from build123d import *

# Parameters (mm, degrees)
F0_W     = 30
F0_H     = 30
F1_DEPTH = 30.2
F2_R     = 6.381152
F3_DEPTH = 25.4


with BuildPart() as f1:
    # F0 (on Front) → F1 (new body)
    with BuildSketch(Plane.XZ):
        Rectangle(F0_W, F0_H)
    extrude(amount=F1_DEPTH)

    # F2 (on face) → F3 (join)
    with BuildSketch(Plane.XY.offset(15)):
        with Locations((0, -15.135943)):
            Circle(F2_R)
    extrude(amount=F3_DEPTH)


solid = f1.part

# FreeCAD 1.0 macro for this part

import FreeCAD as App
import Part
import Sketcher

doc = App.newDocument("Part")
body = doc.addObject("PartDesign::Body", "Body")

# Sketch on XZ plane
sketch1 = body.newObject("Sketcher::SketchObject", "Sketch")
sketch1.AttachmentSupport = (doc.getObject("XZ_Plane"), [""])
sketch1.MapMode = "FlatFace"
sketch1.addGeometry([
    Part.LineSegment(App.Vector(-15, 15, 0), App.Vector(-15, -15, 0)),
    Part.LineSegment(App.Vector(-15, -15, 0), App.Vector(15, -15, 0)),
    Part.LineSegment(App.Vector(15, -15, 0), App.Vector(15, 15, 0)),
    Part.LineSegment(App.Vector(15, 15, 0), App.Vector(-15, 15, 0)),
], False)
sketch1.addConstraint([
    Sketcher.Constraint("Coincident", 0, 2, 1, 1),
    Sketcher.Constraint("Coincident", 1, 2, 2, 1),
    Sketcher.Constraint("Coincident", 2, 2, 3, 1),
    Sketcher.Constraint("Coincident", 3, 2, 0, 1),
    Sketcher.Constraint("Vertical", 0),
    Sketcher.Constraint("Horizontal", 1),
    Sketcher.Constraint("Vertical", 2),
    Sketcher.Constraint("Horizontal", 3),
    Sketcher.Constraint("Symmetric", 0, 2, 2, 2, -1, 1),
    Sketcher.Constraint("Equal", 3, 0),
    Sketcher.Constraint("DistanceX", 1, 1, 1, 2, 30.0),
])
pad1 = body.newObject("PartDesign::Pad", "Pad")
pad1.Profile = sketch1
pad1.Length = 30.2

# Sketch on XY plane
sketch2 = body.newObject("Sketcher::SketchObject", "Sketch001")
sketch2.AttachmentSupport = (doc.getObject("XY_Plane"), [""])
sketch2.MapMode = "FlatFace"
sketch2.AttachmentOffset = App.Placement(App.Vector(0, 0, 15), App.Rotation())
sketch2.addGeometry(Part.Circle(App.Vector(0, -15, 0), App.Vector(0, 0, 1), 6), False)
sketch2.addConstraint([
    Sketcher.Constraint("PointOnObject", 0, 3, -2),
    Sketcher.Constraint("Diameter", 0, 12.762304),
    Sketcher.Constraint("DistanceY", 0, 3, -1, 1, 15.135943),
])
pad2 = body.newObject("PartDesign::Pad", "Pad001")
pad2.Profile = sketch2
pad2.Length = 25.4

doc.recompute()
